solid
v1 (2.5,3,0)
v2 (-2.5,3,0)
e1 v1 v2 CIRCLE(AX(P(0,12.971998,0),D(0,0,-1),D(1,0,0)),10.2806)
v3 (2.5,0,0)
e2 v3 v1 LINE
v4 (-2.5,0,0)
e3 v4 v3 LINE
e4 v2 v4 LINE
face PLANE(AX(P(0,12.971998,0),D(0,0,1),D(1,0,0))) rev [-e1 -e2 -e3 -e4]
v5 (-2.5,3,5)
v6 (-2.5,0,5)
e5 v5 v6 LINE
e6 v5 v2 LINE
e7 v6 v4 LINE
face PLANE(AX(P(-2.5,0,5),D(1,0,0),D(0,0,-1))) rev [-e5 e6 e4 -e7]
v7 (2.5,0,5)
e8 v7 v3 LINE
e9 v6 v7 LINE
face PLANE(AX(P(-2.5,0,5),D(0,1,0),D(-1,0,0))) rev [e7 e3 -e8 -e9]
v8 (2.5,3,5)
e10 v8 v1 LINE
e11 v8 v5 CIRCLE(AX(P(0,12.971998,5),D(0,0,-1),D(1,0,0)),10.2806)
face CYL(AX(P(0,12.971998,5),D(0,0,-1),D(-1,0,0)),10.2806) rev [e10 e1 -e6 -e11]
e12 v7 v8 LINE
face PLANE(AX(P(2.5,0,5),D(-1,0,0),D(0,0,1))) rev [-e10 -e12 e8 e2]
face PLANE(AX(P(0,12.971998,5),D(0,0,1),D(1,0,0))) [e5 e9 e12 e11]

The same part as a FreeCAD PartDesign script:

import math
import FreeCAD as App
import Part
import Sketcher

doc = App.newDocument("Part")
params = doc.addObject("Spreadsheet::Sheet", "Params")
for row, (alias, value) in enumerate([
    ("sketch1_width", "5 mm"),
    ("sketch1_height", "3 mm"),
    ("pad1_length", "5 mm"),
], start=1):
    params.set(f"A{row}", alias)
    params.set(f"B{row}", "=" + value)
    params.setAlias(f"B{row}", alias)

body = doc.addObject("PartDesign::Body", "Body")

sketch1 = body.newObject("Sketcher::SketchObject", "Sketch")
sketch1.AttachmentSupport = (doc.getObject("XY_Plane"), [""])
sketch1.MapMode = "FlatFace"
sketch1.addGeometry([
    Part.LineSegment(App.Vector(-2.5, 0, 0), App.Vector(2.5, 0, 0)),
    Part.LineSegment(App.Vector(2.5, 0, 0), App.Vector(2.5, 3, 0)),
    Part.ArcOfCircle(Part.Circle(App.Vector(0, 13, 0), App.Vector(0, 0, 1), 10.3), math.radians(-104), math.radians(-76)),
    Part.LineSegment(App.Vector(-2.5, 3, 0), App.Vector(-2.5, 0, 0)),
], False)
sketch1.addConstraint([
    Sketcher.Constraint("Coincident", 0, 2, 1, 1),
    Sketcher.Constraint("Coincident", 1, 2, 2, 2),
    Sketcher.Constraint("Coincident", 2, 1, 3, 1),
    Sketcher.Constraint("Coincident", 3, 2, 0, 1),
    Sketcher.Constraint("Horizontal", 0),
    Sketcher.Constraint("Vertical", 1),
    Sketcher.Constraint("Vertical", 3),
    Sketcher.Constraint("Symmetric", 0, 2, 3, 2, -1, 1),
    Sketcher.Constraint("PointOnObject", 2, 3, -2),
    Sketcher.Constraint("DistanceX", 0, 1, 0, 2, 5.0),
    Sketcher.Constraint("DistanceY", 1, 1, 1, 2, 3.0),
    Sketcher.Constraint("Radius", 2, 10.2806),
])
sketch1.setExpression("Constraints[9]", "Params.sketch1_width")
sketch1.setExpression("Constraints[10]", "Params.sketch1_height")
pad1 = body.newObject("PartDesign::Pad", "Pad")
pad1.Profile = sketch1
pad1.setExpression("Length", "Params.pad1_length")

doc.recompute()
